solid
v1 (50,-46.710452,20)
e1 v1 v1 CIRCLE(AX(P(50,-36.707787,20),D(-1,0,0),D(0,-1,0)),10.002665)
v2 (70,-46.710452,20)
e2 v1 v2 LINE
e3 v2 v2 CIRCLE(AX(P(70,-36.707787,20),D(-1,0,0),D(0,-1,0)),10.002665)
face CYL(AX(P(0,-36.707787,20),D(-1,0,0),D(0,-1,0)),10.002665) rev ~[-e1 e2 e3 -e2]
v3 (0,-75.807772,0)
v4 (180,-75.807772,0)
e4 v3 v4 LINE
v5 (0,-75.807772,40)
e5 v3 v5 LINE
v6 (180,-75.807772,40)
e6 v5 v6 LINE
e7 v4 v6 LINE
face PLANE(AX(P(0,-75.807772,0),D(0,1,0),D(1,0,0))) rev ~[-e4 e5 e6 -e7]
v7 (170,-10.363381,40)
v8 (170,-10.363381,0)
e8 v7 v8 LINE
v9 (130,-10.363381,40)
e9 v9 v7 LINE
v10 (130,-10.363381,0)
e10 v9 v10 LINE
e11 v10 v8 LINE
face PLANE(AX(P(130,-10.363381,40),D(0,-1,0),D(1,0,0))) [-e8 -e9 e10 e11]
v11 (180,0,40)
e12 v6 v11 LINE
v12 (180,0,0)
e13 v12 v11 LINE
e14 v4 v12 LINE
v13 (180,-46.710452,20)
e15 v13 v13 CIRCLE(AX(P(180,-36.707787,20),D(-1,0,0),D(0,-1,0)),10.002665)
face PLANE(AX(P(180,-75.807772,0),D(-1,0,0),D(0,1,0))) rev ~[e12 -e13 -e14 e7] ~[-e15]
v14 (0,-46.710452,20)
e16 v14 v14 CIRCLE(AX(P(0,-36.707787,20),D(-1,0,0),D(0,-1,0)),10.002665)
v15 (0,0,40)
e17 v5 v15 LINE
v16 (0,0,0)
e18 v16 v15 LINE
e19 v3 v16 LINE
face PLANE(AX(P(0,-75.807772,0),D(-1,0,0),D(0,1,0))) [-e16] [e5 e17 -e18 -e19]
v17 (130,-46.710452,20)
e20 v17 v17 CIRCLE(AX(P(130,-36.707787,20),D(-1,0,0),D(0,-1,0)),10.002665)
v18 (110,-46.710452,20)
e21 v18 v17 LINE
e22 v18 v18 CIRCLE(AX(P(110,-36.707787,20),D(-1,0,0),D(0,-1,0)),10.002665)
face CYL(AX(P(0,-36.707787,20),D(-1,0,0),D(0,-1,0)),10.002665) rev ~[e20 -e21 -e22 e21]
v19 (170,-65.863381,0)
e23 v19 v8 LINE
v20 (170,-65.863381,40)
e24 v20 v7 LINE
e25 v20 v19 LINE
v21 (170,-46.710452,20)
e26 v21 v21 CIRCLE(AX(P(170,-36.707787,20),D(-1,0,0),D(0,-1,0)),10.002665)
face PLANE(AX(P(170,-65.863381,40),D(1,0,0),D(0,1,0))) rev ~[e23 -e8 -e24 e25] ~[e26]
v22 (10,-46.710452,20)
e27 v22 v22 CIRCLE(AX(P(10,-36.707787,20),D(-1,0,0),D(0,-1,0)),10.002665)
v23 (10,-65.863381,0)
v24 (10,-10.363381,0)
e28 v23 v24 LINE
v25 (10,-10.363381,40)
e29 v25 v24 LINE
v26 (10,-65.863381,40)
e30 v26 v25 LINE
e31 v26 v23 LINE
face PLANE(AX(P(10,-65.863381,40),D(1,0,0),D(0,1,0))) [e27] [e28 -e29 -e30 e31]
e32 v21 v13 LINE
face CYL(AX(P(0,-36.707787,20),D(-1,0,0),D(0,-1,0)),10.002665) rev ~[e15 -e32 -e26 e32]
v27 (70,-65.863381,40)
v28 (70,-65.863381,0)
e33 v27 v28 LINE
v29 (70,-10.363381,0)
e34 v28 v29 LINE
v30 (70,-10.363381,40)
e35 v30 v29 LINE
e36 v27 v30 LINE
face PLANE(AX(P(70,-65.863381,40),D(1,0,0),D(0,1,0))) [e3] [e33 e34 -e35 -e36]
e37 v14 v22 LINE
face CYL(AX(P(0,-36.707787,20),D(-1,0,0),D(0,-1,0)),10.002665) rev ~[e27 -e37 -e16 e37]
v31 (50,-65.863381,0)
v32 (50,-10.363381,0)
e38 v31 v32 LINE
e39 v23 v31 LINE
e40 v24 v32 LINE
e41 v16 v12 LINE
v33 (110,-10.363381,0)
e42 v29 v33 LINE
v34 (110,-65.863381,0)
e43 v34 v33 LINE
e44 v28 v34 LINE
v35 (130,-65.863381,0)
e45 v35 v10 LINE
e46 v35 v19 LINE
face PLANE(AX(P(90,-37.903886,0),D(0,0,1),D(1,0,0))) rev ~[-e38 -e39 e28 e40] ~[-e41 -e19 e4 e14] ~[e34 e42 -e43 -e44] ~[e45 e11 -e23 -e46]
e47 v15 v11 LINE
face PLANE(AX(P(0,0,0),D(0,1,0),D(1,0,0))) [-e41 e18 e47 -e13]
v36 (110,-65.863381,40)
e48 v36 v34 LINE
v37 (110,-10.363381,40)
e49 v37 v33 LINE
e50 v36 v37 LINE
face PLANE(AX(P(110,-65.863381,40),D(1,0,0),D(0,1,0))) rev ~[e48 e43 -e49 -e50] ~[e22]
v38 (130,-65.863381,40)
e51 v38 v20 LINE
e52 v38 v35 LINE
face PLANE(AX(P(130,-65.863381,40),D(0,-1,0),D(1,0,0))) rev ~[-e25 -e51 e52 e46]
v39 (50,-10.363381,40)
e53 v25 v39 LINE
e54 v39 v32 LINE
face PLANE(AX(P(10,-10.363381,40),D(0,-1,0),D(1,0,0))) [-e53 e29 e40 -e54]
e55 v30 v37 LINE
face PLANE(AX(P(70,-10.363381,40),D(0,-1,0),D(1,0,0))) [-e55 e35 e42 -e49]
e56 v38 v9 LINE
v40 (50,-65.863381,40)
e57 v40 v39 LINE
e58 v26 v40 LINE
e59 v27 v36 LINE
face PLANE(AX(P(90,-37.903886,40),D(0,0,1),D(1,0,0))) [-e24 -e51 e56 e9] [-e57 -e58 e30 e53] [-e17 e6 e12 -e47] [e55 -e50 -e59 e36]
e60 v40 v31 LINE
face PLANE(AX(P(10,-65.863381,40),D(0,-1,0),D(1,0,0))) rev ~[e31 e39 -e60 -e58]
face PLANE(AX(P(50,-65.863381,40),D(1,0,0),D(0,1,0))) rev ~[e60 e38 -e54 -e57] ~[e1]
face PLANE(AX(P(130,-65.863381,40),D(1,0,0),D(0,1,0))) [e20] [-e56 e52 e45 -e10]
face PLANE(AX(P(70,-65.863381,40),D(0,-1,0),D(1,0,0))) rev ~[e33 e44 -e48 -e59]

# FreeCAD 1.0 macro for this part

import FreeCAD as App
import Part
import Sketcher

V = App.Vector
Q = App.Units.Quantity

doc = App.newDocument("Part")
params = doc.addObject("Spreadsheet::Sheet", "Params")
for row, (alias, value) in enumerate([
    ("sketch1_width", "180 mm"),
    ("pad1_length", "40 mm"),
    ("sketch2_width", "40 mm"),
    ("sketch2_height", "55.5 mm"),
    ("pocket1_length", "40 mm"),
    ("pocket2_length", "257 mm"),
], start=1):
    params.set(f"A{row}", alias)
    params.set(f"B{row}", "=" + value)
    params.setAlias(f"B{row}", alias)

body = doc.addObject("PartDesign::Body", "Body")

# Sketch on XY plane
sketch1 = doc.addObject("Sketcher::SketchObject", "Sketch")
body.addObject(sketch1)
sketch1.AttachmentSupport = (doc.XY_Plane, [""])
sketch1.MapMode = "FlatFace"
sketch1.addGeometry(Part.LineSegment(V(0, 0, 0), V(0, -75.807772, 0)), False)
sketch1.addGeometry(Part.LineSegment(V(0, -75.807772, 0), V(180, -75.807772, 0)), False)
sketch1.addGeometry(Part.LineSegment(V(180, -75.807772, 0), V(180, 0, 0)), False)
sketch1.addGeometry(Part.LineSegment(V(180, 0, 0), V(0, 0, 0)), False)
sketch1.addConstraint(Sketcher.Constraint("Coincident", 0, 2, 1, 1))
sketch1.addConstraint(Sketcher.Constraint("Coincident", 1, 2, 2, 1))
sketch1.addConstraint(Sketcher.Constraint("Coincident", 2, 2, 3, 1))
sketch1.addConstraint(Sketcher.Constraint("Coincident", 3, 2, 0, 1))
sketch1.addConstraint(Sketcher.Constraint("Vertical", 0))
sketch1.addConstraint(Sketcher.Constraint("Horizontal", 1))
sketch1.addConstraint(Sketcher.Constraint("Vertical", 2))
sketch1.addConstraint(Sketcher.Constraint("Horizontal", 3))
sketch1.addConstraint(Sketcher.Constraint("Coincident", 3, 2, -1, 1))
sketch1.addConstraint(Sketcher.Constraint("DistanceX", 1, 1, 1, 2, Q("180 mm")))
sketch1.addConstraint(Sketcher.Constraint("DistanceY", 0, 2, 0, 1, Q("75.807773 mm")))
sketch1.setExpression("Constraints[9]", "Params.sketch1_width")
pad1 = doc.addObject("PartDesign::Pad", "Pad")
body.addObject(pad1)
pad1.Profile = sketch1
pad1.setExpression("Length", "Params.pad1_length")

# Sketch on XY plane
sketch2 = doc.addObject("Sketcher::SketchObject", "Sketch001")
body.addObject(sketch2)
sketch2.AttachmentSupport = (doc.XY_Plane, [""])
sketch2.MapMode = "FlatFace"
sketch2.AttachmentOffset = App.Placement(V(0, 0, 40), App.Rotation())
sketch2.addGeometry(Part.LineSegment(V(10, -10.363381, 0), V(10, -65.863381, 0)), False)
sketch2.addGeometry(Part.LineSegment(V(10, -65.863381, 0), V(50, -65.863381, 0)), False)
sketch2.addGeometry(Part.LineSegment(V(50, -65.863381, 0), V(50, -10.363381, 0)), False)
sketch2.addGeometry(Part.LineSegment(V(50, -10.363381, 0), V(10, -10.363381, 0)), False)
sketch2.addGeometry(Part.LineSegment(V(70, -10.363381, 0), V(70, -65.863381, 0)), False)
sketch2.addGeometry(Part.LineSegment(V(70, -65.863381, 0), V(110, -65.863381, 0)), False)
sketch2.addGeometry(Part.LineSegment(V(110, -65.863381, 0), V(110, -10.363381, 0)), False)
sketch2.addGeometry(Part.LineSegment(V(110, -10.363381, 0), V(70, -10.363381, 0)), False)
sketch2.addGeometry(Part.LineSegment(V(130, -10.363381, 0), V(130, -65.863381, 0)), False)
sketch2.addGeometry(Part.LineSegment(V(130, -65.863381, 0), V(170, -65.863381, 0)), False)
sketch2.addGeometry(Part.LineSegment(V(170, -65.863381, 0), V(170, -10.363381, 0)), False)
sketch2.addGeometry(Part.LineSegment(V(170, -10.363381, 0), V(130, -10.363381, 0)), False)
sketch2.addConstraint(Sketcher.Constraint("Coincident", 0, 2, 1, 1))
sketch2.addConstraint(Sketcher.Constraint("Coincident", 1, 2, 2, 1))
sketch2.addConstraint(Sketcher.Constraint("Coincident", 2, 2, 3, 1))
sketch2.addConstraint(Sketcher.Constraint("Coincident", 3, 2, 0, 1))
sketch2.addConstraint(Sketcher.Constraint("Coincident", 4, 2, 5, 1))
sketch2.addConstraint(Sketcher.Constraint("Coincident", 5, 2, 6, 1))
sketch2.addConstraint(Sketcher.Constraint("Coincident", 6, 2, 7, 1))
sketch2.addConstraint(Sketcher.Constraint("Coincident", 7, 2, 4, 1))
sketch2.addConstraint(Sketcher.Constraint("Coincident", 8, 2, 9, 1))
sketch2.addConstraint(Sketcher.Constraint("Coincident", 9, 2, 10, 1))
sketch2.addConstraint(Sketcher.Constraint("Coincident", 10, 2, 11, 1))
sketch2.addConstraint(Sketcher.Constraint("Coincident", 11, 2, 8, 1))
sketch2.addConstraint(Sketcher.Constraint("Vertical", 0))
sketch2.addConstraint(Sketcher.Constraint("Horizontal", 1))
sketch2.addConstraint(Sketcher.Constraint("Vertical", 2))
sketch2.addConstraint(Sketcher.Constraint("Horizontal", 3))
sketch2.addConstraint(Sketcher.Constraint("Vertical", 4))
sketch2.addConstraint(Sketcher.Constraint("Horizontal", 5))
sketch2.addConstraint(Sketcher.Constraint("Vertical", 6))
sketch2.addConstraint(Sketcher.Constraint("Horizontal", 7))
sketch2.addConstraint(Sketcher.Constraint("Vertical", 8))
sketch2.addConstraint(Sketcher.Constraint("Horizontal", 9))
sketch2.addConstraint(Sketcher.Constraint("Vertical", 10))
sketch2.addConstraint(Sketcher.Constraint("Horizontal", 11))
sketch2.addConstraint(Sketcher.Constraint("Horizontal", 1, 2, 4, 2))
sketch2.addConstraint(Sketcher.Constraint("Horizontal", 3, 2, 6, 2))
sketch2.addConstraint(Sketcher.Constraint("Horizontal", 5, 2, 8, 2))
sketch2.addConstraint(Sketcher.Constraint("Horizontal", 7, 2, 10, 2))
sketch2.addConstraint(Sketcher.Constraint("Equal", 3, 5))
sketch2.addConstraint(Sketcher.Constraint("Equal", 7, 9))
sketch2.addConstraint(Sketcher.Constraint("DistanceX", 1, 1, 1, 2, Q("40 mm")))
sketch2.addConstraint(Sketcher.Constraint("DistanceY", 0, 2, 0, 1, Q("55.5 mm")))
sketch2.addConstraint(Sketcher.Constraint("DistanceX", -1, 1, 0, 2, Q("10 mm")))
sketch2.addConstraint(Sketcher.Constraint("DistanceX", -1, 1, 4, 2, Q("70 mm")))
sketch2.addConstraint(Sketcher.Constraint("DistanceX", -1, 1, 8, 2, Q("130 mm")))
sketch2.addConstraint(Sketcher.Constraint("DistanceY", 0, 2, -1, 1, Q("65.863381 mm")))
sketch2.setExpression("Constraints[30]", "Params.sketch2_width")
sketch2.setExpression("Constraints[31]", "Params.sketch2_height")
pocket1 = doc.addObject("PartDesign::Pocket", "Pocket")
body.addObject(pocket1)
pocket1.Profile = sketch2
pocket1.setExpression("Length", "Params.pocket1_length")

# Sketch on YZ plane
sketch3 = doc.addObject("Sketcher::SketchObject", "Sketch002")
body.addObject(sketch3)
sketch3.AttachmentSupport = (doc.YZ_Plane, [""])
sketch3.MapMode = "FlatFace"
sketch3.addGeometry(Part.Circle(V(-36.707787, 20, 0), V(0, 0, 1), 10.002665), False)
sketch3.addConstraint(Sketcher.Constraint("DistanceY", -1, 1, 0, 3, Q("20 mm")))
sketch3.addConstraint(Sketcher.Constraint("Diameter", 0, Q("20.00533 mm")))
sketch3.addConstraint(Sketcher.Constraint("DistanceX", 0, 3, -1, 1, Q("36.707787 mm")))
pocket2 = doc.addObject("PartDesign::Pocket", "Pocket001")
body.addObject(pocket2)
pocket2.Profile = sketch3
pocket2.setExpression("Length", "Params.pocket2_length")
pocket2.Reversed = True

doc.recompute()
